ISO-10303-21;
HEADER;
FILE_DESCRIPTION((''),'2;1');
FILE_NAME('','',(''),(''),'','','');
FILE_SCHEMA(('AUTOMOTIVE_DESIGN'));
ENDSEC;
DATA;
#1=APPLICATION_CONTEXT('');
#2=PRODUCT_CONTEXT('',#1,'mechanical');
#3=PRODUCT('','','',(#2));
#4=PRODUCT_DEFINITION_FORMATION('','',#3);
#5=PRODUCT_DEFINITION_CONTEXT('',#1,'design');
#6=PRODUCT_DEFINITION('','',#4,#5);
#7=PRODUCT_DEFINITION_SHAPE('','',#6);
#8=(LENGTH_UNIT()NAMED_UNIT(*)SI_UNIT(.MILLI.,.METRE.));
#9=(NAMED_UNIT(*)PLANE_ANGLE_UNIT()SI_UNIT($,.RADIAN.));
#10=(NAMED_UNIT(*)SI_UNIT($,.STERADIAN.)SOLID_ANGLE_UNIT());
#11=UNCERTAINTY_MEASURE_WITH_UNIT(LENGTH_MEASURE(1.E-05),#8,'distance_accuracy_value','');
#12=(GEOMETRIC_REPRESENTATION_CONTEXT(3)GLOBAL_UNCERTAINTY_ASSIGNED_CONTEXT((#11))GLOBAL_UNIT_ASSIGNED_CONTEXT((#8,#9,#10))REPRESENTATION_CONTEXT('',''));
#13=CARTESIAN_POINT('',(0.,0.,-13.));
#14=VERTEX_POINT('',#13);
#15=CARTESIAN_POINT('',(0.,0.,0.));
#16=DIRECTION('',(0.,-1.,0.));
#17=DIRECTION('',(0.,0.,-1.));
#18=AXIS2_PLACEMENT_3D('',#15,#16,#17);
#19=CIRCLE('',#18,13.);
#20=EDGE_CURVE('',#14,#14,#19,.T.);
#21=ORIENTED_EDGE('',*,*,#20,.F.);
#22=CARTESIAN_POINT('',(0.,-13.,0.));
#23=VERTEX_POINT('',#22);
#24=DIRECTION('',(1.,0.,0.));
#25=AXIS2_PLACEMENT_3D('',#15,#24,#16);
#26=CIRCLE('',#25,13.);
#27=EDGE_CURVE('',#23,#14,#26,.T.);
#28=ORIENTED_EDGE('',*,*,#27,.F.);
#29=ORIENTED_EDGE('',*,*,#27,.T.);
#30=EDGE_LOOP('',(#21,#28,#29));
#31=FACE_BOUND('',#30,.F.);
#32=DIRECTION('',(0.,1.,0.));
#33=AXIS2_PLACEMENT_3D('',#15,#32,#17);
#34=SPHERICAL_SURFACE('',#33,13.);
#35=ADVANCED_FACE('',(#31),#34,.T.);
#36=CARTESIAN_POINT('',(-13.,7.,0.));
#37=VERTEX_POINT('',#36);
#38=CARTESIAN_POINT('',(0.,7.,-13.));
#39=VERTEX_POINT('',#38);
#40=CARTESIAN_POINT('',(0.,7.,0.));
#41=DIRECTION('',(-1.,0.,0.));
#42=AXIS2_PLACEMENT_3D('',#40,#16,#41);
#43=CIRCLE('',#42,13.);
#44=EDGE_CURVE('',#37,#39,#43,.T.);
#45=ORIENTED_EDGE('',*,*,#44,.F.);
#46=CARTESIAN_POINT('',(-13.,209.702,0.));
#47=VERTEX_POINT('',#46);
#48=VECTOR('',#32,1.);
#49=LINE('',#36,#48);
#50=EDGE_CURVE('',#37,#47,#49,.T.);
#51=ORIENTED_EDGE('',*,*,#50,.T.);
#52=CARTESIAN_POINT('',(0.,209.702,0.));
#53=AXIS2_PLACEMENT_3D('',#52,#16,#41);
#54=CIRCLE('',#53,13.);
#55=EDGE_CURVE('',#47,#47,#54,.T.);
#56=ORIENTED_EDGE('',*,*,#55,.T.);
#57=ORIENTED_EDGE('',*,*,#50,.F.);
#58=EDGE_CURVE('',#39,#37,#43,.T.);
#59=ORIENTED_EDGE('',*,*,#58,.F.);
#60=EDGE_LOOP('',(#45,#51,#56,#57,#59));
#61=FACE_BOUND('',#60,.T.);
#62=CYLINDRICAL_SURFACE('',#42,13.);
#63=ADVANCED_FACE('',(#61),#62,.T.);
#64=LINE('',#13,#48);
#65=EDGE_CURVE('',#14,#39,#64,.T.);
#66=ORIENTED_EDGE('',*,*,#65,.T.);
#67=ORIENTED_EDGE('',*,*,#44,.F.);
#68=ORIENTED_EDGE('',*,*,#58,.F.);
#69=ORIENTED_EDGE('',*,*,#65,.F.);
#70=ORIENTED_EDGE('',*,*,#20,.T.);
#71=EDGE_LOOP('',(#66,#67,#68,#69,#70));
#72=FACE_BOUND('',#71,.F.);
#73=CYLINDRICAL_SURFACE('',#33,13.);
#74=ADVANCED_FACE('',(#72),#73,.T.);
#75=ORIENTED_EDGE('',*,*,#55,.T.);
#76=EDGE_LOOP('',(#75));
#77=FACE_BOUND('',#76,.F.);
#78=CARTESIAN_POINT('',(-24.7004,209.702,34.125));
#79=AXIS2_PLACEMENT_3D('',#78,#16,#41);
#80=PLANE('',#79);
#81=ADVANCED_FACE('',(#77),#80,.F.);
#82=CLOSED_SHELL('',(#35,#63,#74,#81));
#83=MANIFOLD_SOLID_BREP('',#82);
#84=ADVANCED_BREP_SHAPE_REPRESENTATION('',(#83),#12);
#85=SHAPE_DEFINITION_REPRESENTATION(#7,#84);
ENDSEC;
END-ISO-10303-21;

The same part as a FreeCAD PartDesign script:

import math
import FreeCAD as App
import Part
import Sketcher
from FreeCAD import Vector

doc = App.newDocument("Part")
body = doc.addObject("PartDesign::Body", "Body")

# Sketch on XZ plane
sketch1 = body.newObject("Sketcher::SketchObject", "Sketch")
sketch1.AttachmentSupport = (doc.getObject("XZ_Plane"), [""])
sketch1.MapMode = "FlatFace"
sketch1.AttachmentOffset = App.Placement(Vector(0, 0, -7), App.Rotation())
sketch1.addGeometry(Part.Circle(Vector(0, 0, 0), Vector(0, 0, 1), 13), False)
sketch1.addConstraint(Sketcher.Constraint("Coincident", 0, 3, -1, 1))
sketch1.addConstraint(Sketcher.Constraint("Diameter", 0, 26.0))
pad1 = body.newObject("PartDesign::Pad", "Pad")
pad1.Profile = sketch1
pad1.Length = 202.702
pad1.Reversed = True

# Sketch on YZ plane
sketch2 = body.newObject("Sketcher::SketchObject", "Sketch001")
sketch2.AttachmentSupport = (doc.getObject("YZ_Plane"), [""])
sketch2.MapMode = "FlatFace"
sketch2.addGeometry(Part.LineSegment(Vector(7, 0, 0), Vector(-13, 0, 0)), False)
sketch2.addGeometry(Part.ArcOfCircle(Part.Circle(Vector(0, 0, 0), Vector(0, 0, 1), 13), math.radians(180), math.radians(270)), False)
sketch2.addGeometry(Part.LineSegment(Vector(0, -13, 0), Vector(7, -13, 0)), False)
sketch2.addGeometry(Part.LineSegment(Vector(7, -13, 0), Vector(7, 0, 0)), False)
sketch2.addConstraint(Sketcher.Constraint("Coincident", 0, 2, 1, 1))
sketch2.addConstraint(Sketcher.Constraint("Tangent", 1, 2, 2, 1))
sketch2.addConstraint(Sketcher.Constraint("Coincident", 2, 2, 3, 1))
sketch2.addConstraint(Sketcher.Constraint("Coincident", 3, 2, 0, 1))
sketch2.addConstraint(Sketcher.Constraint("Horizontal", 0))
sketch2.addConstraint(Sketcher.Constraint("Horizontal", 2))
sketch2.addConstraint(Sketcher.Constraint("Vertical", 3))
sketch2.addConstraint(Sketcher.Constraint("Coincident", 1, 3, -1, 1))
sketch2.addConstraint(Sketcher.Constraint("PointOnObject", 0, 2, -1))
sketch2.addConstraint(Sketcher.Constraint("Radius", 1, 13.0))
sketch2.addConstraint(Sketcher.Constraint("DistanceX", 0, 2, 0, 1, 20.0))
revolution = body.newObject("PartDesign::Revolution", "Revolution")
revolution.Profile = sketch2
revolution.ReferenceAxis = (sketch2, ["H_Axis"])
revolution.Angle = 360

doc.recompute()
